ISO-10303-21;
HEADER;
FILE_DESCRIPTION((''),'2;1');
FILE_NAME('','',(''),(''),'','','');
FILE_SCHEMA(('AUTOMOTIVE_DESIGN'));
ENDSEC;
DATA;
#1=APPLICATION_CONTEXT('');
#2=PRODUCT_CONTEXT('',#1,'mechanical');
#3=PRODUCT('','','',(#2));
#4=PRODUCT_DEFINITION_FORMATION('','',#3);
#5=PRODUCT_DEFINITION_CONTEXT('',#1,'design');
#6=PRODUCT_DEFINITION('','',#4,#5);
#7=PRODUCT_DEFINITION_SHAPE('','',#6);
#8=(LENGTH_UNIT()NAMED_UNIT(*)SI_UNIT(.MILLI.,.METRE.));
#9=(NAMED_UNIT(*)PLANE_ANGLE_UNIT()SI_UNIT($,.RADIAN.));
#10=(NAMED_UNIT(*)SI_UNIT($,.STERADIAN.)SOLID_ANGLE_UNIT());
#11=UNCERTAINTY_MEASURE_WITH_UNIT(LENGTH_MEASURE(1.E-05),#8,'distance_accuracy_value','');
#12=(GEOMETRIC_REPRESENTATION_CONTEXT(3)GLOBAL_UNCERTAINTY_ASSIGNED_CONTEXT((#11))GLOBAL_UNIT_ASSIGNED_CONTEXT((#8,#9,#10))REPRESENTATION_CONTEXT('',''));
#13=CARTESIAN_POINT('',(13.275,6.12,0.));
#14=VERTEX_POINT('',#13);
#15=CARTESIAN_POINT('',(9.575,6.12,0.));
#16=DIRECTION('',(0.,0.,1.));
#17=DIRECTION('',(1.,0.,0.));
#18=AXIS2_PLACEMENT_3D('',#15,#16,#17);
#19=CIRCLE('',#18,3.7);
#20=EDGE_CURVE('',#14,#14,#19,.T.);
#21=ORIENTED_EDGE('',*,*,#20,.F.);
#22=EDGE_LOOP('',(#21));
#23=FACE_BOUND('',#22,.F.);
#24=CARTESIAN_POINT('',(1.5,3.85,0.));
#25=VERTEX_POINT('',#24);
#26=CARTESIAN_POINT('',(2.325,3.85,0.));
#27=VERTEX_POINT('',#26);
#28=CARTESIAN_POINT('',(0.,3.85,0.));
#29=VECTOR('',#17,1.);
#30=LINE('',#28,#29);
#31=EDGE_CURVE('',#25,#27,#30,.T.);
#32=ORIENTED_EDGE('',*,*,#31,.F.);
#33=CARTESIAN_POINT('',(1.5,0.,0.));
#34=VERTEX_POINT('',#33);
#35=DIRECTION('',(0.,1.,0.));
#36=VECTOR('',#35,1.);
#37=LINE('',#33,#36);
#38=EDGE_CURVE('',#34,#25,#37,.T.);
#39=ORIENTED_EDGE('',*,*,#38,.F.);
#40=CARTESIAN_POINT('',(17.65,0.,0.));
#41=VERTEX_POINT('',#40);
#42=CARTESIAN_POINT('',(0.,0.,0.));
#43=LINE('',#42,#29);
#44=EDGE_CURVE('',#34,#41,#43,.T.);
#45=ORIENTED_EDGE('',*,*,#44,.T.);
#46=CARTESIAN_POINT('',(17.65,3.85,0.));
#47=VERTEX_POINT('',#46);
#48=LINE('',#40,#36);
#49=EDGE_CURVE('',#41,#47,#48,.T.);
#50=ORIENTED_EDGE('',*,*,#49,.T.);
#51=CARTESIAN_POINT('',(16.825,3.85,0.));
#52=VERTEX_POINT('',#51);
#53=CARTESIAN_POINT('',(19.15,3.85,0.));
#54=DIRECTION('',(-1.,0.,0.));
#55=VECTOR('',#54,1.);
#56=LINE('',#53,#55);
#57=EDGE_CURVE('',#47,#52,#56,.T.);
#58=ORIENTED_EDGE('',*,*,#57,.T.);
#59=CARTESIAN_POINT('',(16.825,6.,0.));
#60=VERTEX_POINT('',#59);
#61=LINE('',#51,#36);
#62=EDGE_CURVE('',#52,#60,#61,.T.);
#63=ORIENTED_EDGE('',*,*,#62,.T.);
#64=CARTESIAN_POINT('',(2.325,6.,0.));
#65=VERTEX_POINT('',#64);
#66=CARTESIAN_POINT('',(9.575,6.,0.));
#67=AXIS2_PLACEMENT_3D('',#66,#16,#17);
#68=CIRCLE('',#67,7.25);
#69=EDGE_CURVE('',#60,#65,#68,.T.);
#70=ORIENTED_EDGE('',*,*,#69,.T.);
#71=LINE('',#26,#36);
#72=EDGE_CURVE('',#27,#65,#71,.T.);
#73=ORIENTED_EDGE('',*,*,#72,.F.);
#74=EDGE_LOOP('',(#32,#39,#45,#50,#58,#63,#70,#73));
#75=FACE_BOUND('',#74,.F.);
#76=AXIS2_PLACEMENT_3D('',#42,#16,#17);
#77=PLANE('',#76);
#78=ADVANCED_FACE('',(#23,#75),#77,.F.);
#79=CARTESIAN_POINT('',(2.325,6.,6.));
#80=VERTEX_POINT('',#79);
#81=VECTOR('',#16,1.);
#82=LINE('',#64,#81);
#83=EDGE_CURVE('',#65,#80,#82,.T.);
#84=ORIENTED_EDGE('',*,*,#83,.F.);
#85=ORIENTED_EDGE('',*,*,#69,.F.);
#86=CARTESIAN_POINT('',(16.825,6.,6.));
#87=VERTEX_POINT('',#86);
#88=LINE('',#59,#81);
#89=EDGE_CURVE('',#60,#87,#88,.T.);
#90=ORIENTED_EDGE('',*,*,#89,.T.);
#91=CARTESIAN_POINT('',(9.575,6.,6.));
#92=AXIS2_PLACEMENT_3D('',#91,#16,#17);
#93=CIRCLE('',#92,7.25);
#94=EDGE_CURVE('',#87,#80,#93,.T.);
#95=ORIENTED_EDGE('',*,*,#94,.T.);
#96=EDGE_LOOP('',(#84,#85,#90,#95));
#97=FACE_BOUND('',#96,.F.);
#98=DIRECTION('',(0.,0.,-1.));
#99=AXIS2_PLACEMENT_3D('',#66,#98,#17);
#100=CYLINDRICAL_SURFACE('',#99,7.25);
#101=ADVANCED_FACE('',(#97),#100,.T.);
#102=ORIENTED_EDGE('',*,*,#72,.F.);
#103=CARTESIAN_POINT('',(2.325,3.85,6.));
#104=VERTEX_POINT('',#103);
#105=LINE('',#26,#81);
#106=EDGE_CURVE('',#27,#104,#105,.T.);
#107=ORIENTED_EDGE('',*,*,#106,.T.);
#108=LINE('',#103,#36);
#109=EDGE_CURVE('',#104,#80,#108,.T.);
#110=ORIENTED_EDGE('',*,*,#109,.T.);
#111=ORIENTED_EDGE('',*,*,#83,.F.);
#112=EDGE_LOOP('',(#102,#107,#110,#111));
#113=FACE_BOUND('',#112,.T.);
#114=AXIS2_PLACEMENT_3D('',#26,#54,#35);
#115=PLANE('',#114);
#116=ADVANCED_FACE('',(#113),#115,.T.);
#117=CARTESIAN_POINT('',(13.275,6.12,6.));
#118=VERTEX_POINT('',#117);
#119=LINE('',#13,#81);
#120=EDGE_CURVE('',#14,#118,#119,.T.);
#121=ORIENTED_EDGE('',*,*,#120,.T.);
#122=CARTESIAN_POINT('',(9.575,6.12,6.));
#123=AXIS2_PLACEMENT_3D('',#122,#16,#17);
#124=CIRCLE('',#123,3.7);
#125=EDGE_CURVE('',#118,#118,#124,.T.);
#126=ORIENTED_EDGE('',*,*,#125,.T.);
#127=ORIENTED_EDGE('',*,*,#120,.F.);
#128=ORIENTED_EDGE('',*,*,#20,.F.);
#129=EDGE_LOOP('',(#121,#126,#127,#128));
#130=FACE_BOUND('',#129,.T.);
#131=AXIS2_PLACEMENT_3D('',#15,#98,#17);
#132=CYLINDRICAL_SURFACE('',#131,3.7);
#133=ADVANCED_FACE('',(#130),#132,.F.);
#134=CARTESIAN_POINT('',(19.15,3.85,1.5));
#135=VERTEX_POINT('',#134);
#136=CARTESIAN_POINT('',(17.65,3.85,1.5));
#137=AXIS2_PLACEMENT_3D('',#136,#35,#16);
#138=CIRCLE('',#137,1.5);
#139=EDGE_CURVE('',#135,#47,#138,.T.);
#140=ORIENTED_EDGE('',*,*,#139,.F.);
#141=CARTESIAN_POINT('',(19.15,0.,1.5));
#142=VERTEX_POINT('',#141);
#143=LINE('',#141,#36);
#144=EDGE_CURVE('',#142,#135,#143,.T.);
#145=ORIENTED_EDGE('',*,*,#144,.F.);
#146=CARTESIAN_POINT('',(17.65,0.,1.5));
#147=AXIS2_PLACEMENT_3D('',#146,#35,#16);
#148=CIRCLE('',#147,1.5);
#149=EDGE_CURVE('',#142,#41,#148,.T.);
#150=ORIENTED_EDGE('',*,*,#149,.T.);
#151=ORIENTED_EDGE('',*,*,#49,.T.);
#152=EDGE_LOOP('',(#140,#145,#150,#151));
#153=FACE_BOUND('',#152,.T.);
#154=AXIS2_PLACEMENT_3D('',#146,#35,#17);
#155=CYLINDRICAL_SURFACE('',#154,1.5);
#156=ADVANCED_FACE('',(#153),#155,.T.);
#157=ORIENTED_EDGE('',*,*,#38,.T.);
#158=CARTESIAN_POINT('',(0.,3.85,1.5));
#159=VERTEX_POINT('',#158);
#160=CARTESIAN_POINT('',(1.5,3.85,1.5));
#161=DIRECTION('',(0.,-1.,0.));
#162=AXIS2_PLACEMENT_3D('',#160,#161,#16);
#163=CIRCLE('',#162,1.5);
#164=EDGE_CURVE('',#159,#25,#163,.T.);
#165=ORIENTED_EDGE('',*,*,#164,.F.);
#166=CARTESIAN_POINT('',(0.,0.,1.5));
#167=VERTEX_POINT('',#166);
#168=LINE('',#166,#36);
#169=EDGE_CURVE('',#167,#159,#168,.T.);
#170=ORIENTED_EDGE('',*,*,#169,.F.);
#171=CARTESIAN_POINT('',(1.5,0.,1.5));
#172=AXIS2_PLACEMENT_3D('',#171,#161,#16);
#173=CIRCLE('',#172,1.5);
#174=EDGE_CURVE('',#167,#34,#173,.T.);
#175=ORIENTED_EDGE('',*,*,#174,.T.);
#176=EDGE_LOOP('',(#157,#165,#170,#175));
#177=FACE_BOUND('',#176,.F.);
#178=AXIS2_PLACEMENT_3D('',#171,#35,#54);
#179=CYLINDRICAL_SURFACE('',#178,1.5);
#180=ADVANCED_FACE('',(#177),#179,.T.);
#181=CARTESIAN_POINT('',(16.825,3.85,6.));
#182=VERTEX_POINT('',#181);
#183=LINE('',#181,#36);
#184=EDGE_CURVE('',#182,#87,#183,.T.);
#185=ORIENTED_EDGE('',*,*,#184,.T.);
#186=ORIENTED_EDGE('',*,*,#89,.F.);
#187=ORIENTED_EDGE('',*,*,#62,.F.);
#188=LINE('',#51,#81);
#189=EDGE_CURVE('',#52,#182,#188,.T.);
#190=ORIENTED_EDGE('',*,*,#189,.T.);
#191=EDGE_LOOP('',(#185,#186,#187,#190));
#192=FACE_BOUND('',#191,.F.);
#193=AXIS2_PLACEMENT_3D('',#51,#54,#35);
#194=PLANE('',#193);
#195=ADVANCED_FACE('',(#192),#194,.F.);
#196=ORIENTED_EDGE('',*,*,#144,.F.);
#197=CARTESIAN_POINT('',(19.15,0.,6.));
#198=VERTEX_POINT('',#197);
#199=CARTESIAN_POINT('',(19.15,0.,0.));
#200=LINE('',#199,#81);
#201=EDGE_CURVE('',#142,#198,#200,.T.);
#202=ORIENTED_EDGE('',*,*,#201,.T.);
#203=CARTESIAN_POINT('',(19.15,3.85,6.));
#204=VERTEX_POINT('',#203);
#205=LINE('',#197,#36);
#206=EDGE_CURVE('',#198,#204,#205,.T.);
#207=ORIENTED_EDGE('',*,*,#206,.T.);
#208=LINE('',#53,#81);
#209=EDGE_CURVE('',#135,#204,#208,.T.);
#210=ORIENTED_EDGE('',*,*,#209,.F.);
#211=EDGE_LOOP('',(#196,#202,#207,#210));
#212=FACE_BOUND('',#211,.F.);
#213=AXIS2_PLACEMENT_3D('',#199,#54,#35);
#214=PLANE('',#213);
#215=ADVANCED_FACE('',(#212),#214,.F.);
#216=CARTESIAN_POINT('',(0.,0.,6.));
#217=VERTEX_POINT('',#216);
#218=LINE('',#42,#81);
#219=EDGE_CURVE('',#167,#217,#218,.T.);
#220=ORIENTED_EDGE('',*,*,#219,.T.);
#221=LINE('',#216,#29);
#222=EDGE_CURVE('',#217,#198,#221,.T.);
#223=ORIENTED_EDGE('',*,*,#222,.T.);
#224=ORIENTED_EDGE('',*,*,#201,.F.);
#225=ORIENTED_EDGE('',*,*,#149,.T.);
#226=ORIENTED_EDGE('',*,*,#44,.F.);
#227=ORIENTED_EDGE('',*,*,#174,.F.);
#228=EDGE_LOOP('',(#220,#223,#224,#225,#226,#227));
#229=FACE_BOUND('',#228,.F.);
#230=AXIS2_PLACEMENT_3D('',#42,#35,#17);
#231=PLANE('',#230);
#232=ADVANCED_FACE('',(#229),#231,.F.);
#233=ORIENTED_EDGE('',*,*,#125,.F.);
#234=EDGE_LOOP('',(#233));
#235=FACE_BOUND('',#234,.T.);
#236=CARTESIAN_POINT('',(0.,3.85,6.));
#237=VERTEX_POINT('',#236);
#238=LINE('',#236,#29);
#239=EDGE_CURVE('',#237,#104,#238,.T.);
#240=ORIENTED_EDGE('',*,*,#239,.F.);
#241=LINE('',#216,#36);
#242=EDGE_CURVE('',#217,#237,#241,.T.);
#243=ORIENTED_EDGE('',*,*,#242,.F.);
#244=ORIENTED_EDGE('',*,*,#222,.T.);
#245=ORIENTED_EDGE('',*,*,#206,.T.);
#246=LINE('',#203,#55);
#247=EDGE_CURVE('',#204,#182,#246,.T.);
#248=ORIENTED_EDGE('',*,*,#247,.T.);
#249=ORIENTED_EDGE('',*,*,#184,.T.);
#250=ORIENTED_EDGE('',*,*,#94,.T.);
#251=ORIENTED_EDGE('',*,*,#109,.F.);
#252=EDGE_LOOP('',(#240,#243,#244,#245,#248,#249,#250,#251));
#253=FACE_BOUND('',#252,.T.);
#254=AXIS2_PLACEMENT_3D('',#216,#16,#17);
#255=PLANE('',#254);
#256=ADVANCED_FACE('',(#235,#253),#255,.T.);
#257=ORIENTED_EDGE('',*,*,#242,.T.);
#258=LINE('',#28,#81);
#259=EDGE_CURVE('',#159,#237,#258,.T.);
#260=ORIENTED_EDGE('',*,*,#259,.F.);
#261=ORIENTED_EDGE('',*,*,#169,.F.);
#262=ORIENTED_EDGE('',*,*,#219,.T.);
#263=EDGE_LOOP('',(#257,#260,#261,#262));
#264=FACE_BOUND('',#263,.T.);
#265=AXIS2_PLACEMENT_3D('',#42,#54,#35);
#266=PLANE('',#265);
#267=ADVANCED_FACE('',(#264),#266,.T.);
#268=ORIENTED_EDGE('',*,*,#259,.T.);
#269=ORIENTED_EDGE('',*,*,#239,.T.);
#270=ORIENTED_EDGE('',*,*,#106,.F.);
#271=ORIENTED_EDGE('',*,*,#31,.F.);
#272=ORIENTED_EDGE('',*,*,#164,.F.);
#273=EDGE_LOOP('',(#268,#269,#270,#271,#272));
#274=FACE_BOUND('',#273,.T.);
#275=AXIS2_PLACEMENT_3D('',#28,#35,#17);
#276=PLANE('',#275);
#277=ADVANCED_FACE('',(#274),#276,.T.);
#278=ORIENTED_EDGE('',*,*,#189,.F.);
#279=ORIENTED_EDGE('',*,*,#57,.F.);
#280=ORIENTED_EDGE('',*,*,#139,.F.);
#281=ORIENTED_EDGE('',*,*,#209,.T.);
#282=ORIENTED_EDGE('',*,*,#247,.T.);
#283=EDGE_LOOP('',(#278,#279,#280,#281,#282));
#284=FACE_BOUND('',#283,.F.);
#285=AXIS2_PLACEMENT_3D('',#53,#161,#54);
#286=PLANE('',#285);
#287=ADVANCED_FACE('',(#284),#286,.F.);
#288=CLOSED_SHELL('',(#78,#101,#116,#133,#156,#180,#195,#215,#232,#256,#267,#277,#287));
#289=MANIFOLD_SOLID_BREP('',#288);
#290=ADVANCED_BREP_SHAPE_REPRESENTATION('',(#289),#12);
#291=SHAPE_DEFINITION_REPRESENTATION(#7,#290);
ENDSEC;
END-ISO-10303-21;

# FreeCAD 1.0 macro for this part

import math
import FreeCAD as App
import Part
import Sketcher


def edges_at(feature, points):
    """Names of the edges that pass closest to the given points."""
    edges = feature.Shape.Edges
    near = lambda p: min(range(len(edges)), key=lambda i: edges[i].distToShape(Part.Vertex(*p))[0])
    return sorted({f"Edge{near(p) + 1}" for p in points})

doc = App.newDocument("Part")
params = doc.addObject("Spreadsheet::Sheet", "Params")
for row, (alias, value) in enumerate([
    ("sketch1_diameter", "7.4 mm"),
    ("sketch1_radius", "7.25 mm"),
    ("sketch1_width", "19.15 mm"),
    ("sketch1_height", "3.85 mm"),
    ("pad1_length", "6 mm"),
    ("fillet_radius", "1.5 mm"),
], start=1):
    params.set(f"A{row}", alias)
    params.set(f"B{row}", "=" + value)
    params.setAlias(f"B{row}", alias)

body = doc.addObject("PartDesign::Body", "Body")

sketch1 = body.newObject("Sketcher::SketchObject", "Sketch")
sketch1.AttachmentSupport = (doc.getObject("XY_Plane"), [""])
sketch1.MapMode = "FlatFace"
sketch1.addGeometry(Part.LineSegment(App.Vector(0, 3.9, 0), App.Vector(0, 0, 0)), False)
sketch1.addGeometry(Part.LineSegment(App.Vector(0, 0, 0), App.Vector(19.1, 0, 0)), False)
sketch1.addGeometry(Part.LineSegment(App.Vector(19.1, 0, 0), App.Vector(19.1, 3.9, 0)), False)
sketch1.addGeometry(Part.LineSegment(App.Vector(19.1, 3.9, 0), App.Vector(16.8, 3.9, 0)), False)
sketch1.addGeometry(Part.LineSegment(App.Vector(16.8, 3.9, 0), App.Vector(16.8, 6, 0)), False)
sketch1.addGeometry(Part.ArcOfCircle(Part.Circle(App.Vector(9.6, 6, 0), App.Vector(0, 0, 1), 7.2), math.radians(0), math.radians(180)), False)
sketch1.addGeometry(Part.LineSegment(App.Vector(2.3, 6, 0), App.Vector(2.3, 3.9, 0)), False)
sketch1.addGeometry(Part.LineSegment(App.Vector(2.3, 3.9, 0), App.Vector(0, 3.9, 0)), False)
sketch1.addGeometry(Part.Circle(App.Vector(9.6, 6.1, 0), App.Vector(0, 0, 1), 3.7), False)
sketch1.addConstraint(Sketcher.Constraint("Coincident", 0, 2, 1, 1))
sketch1.addConstraint(Sketcher.Constraint("Coincident", 1, 2, 2, 1))
sketch1.addConstraint(Sketcher.Constraint("Coincident", 2, 2, 3, 1))
sketch1.addConstraint(Sketcher.Constraint("Coincident", 3, 2, 4, 1))
sketch1.addConstraint(Sketcher.Constraint("Tangent", 4, 2, 5, 1))
sketch1.addConstraint(Sketcher.Constraint("Tangent", 5, 2, 6, 1))
sketch1.addConstraint(Sketcher.Constraint("Coincident", 6, 2, 7, 1))
sketch1.addConstraint(Sketcher.Constraint("Coincident", 7, 2, 0, 1))
sketch1.addConstraint(Sketcher.Constraint("Vertical", 0))
sketch1.addConstraint(Sketcher.Constraint("Horizontal", 1))
sketch1.addConstraint(Sketcher.Constraint("Vertical", 2))
sketch1.addConstraint(Sketcher.Constraint("Horizontal", 3))
sketch1.addConstraint(Sketcher.Constraint("Vertical", 4))
sketch1.addConstraint(Sketcher.Constraint("Vertical", 6))
sketch1.addConstraint(Sketcher.Constraint("Horizontal", 7))
sketch1.addConstraint(Sketcher.Constraint("Coincident", 0, 2, -1, 1))
sketch1.addConstraint(Sketcher.Constraint("Horizontal", 3, 2, 6, 2))
sketch1.addConstraint(Sketcher.Constraint("Vertical", 5, 3, 8, 3))
sketch1.addConstraint(Sketcher.Constraint("Equal", 3, 7))
sketch1.addConstraint(Sketcher.Constraint("Diameter", 8, 7.4))
sketch1.addConstraint(Sketcher.Constraint("Radius", 5, 7.25))
sketch1.addConstraint(Sketcher.Constraint("DistanceX", 1, 1, 1, 2, 19.15))
sketch1.addConstraint(Sketcher.Constraint("DistanceY", 0, 2, 0, 1, 3.85))
sketch1.addConstraint(Sketcher.Constraint("DistanceY", -1, 1, 5, 3, 6.0))
sketch1.addConstraint(Sketcher.Constraint("DistanceY", -1, 1, 8, 3, 6.12))
sketch1.setExpression("Constraints[19]", "Params.sketch1_diameter")
sketch1.setExpression("Constraints[20]", "Params.sketch1_radius")
sketch1.setExpression("Constraints[21]", "Params.sketch1_width")
sketch1.setExpression("Constraints[22]", "Params.sketch1_height")
pad1 = body.newObject("PartDesign::Pad", "Pad")
pad1.Profile = sketch1
pad1.setExpression("Length", "Params.pad1_length")
doc.recompute()

fillet = body.newObject("PartDesign::Fillet", "Fillet")
fillet.Base = (pad1, edges_at(pad1, [(19.15, 1.925, 0), (0, 1.925, 0)]))
fillet.setExpression("Radius", "Params.fillet_radius")

doc.recompute()
